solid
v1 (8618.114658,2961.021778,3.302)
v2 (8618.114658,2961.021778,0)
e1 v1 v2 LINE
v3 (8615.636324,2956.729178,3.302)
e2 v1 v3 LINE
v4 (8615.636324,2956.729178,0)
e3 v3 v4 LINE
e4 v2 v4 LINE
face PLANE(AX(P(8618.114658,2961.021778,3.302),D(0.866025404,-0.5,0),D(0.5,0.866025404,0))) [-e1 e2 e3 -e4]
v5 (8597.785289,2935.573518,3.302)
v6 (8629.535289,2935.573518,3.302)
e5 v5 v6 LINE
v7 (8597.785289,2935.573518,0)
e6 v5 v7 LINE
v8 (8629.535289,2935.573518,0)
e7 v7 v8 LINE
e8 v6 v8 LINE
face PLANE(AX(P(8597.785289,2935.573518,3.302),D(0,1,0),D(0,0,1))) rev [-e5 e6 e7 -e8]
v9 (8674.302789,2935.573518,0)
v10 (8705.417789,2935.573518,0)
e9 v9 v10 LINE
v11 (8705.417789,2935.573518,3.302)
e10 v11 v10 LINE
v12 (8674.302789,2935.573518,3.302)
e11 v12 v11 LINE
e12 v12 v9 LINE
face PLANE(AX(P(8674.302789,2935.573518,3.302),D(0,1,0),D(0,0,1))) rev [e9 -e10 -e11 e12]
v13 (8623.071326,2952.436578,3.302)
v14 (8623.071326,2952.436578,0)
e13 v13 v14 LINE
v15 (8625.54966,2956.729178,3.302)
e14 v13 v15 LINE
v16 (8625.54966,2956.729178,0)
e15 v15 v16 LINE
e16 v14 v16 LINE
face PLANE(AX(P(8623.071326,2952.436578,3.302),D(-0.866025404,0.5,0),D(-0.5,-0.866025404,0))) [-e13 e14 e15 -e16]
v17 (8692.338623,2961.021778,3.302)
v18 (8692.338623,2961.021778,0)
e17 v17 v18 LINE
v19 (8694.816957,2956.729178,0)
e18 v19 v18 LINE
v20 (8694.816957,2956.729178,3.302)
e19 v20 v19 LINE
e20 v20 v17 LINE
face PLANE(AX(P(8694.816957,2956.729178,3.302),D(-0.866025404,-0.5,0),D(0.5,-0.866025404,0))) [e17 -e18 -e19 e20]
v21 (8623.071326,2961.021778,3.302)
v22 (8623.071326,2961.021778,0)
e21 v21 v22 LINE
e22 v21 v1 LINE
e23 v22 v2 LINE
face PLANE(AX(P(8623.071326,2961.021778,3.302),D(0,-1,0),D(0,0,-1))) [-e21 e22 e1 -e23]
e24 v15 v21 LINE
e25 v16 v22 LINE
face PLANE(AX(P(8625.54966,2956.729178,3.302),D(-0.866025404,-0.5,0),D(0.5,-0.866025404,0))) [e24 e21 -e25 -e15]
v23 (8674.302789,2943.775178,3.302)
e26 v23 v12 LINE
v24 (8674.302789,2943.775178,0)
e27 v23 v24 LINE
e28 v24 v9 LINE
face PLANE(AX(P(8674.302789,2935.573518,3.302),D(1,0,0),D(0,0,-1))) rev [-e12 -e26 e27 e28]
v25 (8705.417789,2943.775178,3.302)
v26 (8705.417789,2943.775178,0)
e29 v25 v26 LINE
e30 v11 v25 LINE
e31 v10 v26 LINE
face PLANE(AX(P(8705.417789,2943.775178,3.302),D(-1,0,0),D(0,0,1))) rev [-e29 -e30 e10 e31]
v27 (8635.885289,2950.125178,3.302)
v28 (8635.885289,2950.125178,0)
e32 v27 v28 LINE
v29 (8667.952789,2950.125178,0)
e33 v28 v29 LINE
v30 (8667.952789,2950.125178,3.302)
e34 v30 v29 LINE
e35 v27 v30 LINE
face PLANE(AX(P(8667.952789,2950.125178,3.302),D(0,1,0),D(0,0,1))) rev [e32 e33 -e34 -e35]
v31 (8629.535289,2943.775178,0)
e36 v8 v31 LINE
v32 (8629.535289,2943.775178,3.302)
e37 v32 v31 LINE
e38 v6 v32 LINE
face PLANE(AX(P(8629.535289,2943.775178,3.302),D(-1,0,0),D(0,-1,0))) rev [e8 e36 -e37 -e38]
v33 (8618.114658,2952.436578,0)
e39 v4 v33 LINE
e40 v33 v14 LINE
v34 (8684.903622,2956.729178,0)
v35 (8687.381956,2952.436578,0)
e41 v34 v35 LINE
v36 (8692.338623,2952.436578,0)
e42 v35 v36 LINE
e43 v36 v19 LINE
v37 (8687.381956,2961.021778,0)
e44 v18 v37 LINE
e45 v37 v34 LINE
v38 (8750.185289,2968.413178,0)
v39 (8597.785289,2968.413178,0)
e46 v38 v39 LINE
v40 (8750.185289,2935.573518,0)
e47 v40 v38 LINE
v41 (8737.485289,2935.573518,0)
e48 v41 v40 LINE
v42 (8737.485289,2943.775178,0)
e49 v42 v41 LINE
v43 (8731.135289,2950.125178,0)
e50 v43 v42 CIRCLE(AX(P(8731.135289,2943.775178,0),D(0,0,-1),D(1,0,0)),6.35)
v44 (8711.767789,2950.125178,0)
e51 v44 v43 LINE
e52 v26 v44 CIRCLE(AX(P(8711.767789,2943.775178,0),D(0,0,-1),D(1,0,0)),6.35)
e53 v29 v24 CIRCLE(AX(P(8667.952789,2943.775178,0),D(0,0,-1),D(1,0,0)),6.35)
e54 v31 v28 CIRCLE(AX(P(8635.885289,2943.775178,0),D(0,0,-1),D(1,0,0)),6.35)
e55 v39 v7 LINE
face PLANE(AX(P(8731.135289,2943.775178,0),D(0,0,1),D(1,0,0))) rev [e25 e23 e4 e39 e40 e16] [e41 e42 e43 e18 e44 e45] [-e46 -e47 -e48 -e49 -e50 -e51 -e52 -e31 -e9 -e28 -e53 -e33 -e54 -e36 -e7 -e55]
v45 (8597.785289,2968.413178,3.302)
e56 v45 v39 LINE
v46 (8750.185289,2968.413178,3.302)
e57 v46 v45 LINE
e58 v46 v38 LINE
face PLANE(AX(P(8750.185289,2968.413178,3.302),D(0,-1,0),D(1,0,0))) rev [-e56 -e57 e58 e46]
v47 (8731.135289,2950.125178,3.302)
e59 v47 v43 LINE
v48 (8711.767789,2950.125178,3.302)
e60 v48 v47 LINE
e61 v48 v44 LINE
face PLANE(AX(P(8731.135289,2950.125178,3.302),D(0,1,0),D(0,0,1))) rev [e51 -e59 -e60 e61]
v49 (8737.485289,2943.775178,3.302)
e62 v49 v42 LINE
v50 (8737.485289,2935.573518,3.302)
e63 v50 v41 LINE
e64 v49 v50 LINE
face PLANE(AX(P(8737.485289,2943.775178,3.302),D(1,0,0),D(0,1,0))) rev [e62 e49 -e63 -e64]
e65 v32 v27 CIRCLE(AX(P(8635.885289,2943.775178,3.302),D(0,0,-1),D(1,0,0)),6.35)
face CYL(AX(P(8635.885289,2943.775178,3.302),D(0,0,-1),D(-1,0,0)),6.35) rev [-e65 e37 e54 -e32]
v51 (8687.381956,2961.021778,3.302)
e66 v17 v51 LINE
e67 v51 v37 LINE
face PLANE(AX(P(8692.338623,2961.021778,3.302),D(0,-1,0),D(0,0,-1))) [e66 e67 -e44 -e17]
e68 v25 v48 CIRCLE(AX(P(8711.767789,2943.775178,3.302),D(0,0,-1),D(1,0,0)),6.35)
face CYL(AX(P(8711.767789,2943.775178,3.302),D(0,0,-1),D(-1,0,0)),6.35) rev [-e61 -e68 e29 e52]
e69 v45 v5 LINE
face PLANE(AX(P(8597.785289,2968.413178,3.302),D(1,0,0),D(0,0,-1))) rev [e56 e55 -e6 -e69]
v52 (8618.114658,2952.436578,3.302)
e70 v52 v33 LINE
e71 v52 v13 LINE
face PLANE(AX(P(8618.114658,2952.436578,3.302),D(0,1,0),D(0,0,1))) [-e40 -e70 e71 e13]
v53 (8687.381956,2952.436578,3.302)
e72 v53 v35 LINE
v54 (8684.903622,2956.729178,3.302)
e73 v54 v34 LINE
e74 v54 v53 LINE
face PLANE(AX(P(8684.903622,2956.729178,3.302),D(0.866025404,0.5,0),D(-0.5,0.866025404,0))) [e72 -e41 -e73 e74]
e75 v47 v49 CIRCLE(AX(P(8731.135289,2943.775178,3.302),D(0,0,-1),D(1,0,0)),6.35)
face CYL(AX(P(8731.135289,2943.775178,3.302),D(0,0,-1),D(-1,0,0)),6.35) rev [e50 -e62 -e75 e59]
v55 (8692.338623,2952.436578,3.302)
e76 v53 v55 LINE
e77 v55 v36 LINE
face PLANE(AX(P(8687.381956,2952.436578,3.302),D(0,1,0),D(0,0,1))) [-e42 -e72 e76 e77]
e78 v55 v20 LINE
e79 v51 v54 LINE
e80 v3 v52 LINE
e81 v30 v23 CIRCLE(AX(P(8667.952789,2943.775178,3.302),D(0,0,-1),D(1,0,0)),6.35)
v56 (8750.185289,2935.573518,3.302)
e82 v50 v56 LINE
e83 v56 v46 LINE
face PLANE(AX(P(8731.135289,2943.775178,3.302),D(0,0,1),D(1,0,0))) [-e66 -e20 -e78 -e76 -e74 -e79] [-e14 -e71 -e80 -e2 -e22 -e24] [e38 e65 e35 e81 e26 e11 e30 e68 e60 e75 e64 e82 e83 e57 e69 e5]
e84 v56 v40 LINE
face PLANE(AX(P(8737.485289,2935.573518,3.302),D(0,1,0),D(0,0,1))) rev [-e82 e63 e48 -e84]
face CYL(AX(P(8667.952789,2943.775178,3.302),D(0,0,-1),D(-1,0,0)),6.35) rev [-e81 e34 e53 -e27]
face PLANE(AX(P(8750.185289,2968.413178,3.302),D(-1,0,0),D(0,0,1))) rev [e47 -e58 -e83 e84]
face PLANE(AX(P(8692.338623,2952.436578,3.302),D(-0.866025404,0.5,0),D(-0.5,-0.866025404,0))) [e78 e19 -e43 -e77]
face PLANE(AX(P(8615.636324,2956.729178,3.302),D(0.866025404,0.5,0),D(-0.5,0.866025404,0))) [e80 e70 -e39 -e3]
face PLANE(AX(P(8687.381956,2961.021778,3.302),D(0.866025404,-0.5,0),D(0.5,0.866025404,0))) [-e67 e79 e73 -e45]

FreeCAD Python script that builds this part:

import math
import FreeCAD as App
import Part
import Sketcher
from FreeCAD import Vector
Q = App.Units.Quantity

doc = App.newDocument("Part")
body = doc.addObject("PartDesign::Body", "Body")

# Sketch on XY plane
sketch1 = body.newObject("Sketcher::SketchObject", "Sketch")
sketch1.AttachmentSupport = (doc.getObject("XY_Plane"), [""])
sketch1.MapMode = "FlatFace"
sketch1.addGeometry([
    Part.LineSegment(Vector(8750.185289, 2968.413178, 0), Vector(8597.785289, 2968.413178, 0)),  # 0
    Part.LineSegment(Vector(8597.785289, 2968.413178, 0), Vector(8597.785289, 2935.573518, 0)),  # 1
    Part.LineSegment(Vector(8597.785289, 2935.573518, 0), Vector(8629.535289, 2935.573518, 0)),  # 2
    Part.LineSegment(Vector(8629.535289, 2935.573518, 0), Vector(8629.535289, 2943.775178, 0)),  # 3
    Part.ArcOfCircle(Part.Circle(Vector(8635.885289, 2943.775178, 0), Vector(0, 0, 1), 6.35), math.radians(90), math.radians(180)),  # 4
    Part.LineSegment(Vector(8635.885289, 2950.125178, 0), Vector(8667.952789, 2950.125178, 0)),  # 5
    Part.ArcOfCircle(Part.Circle(Vector(8667.952789, 2943.775178, 0), Vector(0, 0, 1), 6.35), math.radians(0), math.radians(90)),  # 6
    Part.LineSegment(Vector(8674.302789, 2943.775178, 0), Vector(8674.302789, 2935.573518, 0)),  # 7
    Part.LineSegment(Vector(8674.302789, 2935.573518, 0), Vector(8705.417789, 2935.573518, 0)),  # 8
    Part.LineSegment(Vector(8705.417789, 2935.573518, 0), Vector(8705.417789, 2943.775178, 0)),  # 9
    Part.ArcOfCircle(Part.Circle(Vector(8711.767789, 2943.775178, 0), Vector(0, 0, 1), 6.35), math.radians(90), math.radians(180)),  # 10
    Part.LineSegment(Vector(8711.767789, 2950.125178, 0), Vector(8731.135289, 2950.125178, 0)),  # 11
    Part.ArcOfCircle(Part.Circle(Vector(8731.135289, 2943.775178, 0), Vector(0, 0, 1), 6.35), math.radians(0), math.radians(90)),  # 12
    Part.LineSegment(Vector(8737.485289, 2943.775178, 0), Vector(8737.485289, 2935.573518, 0)),  # 13
    Part.LineSegment(Vector(8737.485289, 2935.573518, 0), Vector(8750.185289, 2935.573518, 0)),  # 14
    Part.LineSegment(Vector(8750.185289, 2935.573518, 0), Vector(8750.185289, 2968.413178, 0)),  # 15
    Part.LineSegment(Vector(8615.636324, 2956.729178, 0), Vector(8618.114658, 2961.021778, 0)),  # 16
    Part.LineSegment(Vector(8618.114658, 2961.021778, 0), Vector(8623.071326, 2961.021778, 0)),  # 17
    Part.LineSegment(Vector(8623.071326, 2961.021778, 0), Vector(8625.54966, 2956.729178, 0)),  # 18
    Part.LineSegment(Vector(8625.54966, 2956.729178, 0), Vector(8623.071326, 2952.436578, 0)),  # 19
    Part.LineSegment(Vector(8623.071326, 2952.436578, 0), Vector(8618.114658, 2952.436578, 0)),  # 20
    Part.LineSegment(Vector(8618.114658, 2952.436578, 0), Vector(8615.636324, 2956.729178, 0)),  # 21
    Part.LineSegment(Vector(8684.903622, 2956.729178, 0), Vector(8687.381956, 2961.021778, 0)),  # 22
    Part.LineSegment(Vector(8687.381956, 2961.021778, 0), Vector(8692.338623, 2961.021778, 0)),  # 23
    Part.LineSegment(Vector(8692.338623, 2961.021778, 0), Vector(8694.816957, 2956.729178, 0)),  # 24
    Part.LineSegment(Vector(8694.816957, 2956.729178, 0), Vector(8692.338623, 2952.436578, 0)),  # 25
    Part.LineSegment(Vector(8692.338623, 2952.436578, 0), Vector(8687.381956, 2952.436578, 0)),  # 26
    Part.LineSegment(Vector(8687.381956, 2952.436578, 0), Vector(8684.903622, 2956.729178, 0)),  # 27
], False)
sketch1.addConstraint([
    Sketcher.Constraint("Coincident", 0, 2, 1, 1),
    Sketcher.Constraint("Coincident", 1, 2, 2, 1),
    Sketcher.Constraint("Coincident", 2, 2, 3, 1),
    Sketcher.Constraint("Tangent", 3, 2, 4, 2),
    Sketcher.Constraint("Tangent", 4, 1, 5, 1),
    Sketcher.Constraint("Tangent", 5, 2, 6, 2),
    Sketcher.Constraint("Tangent", 6, 1, 7, 1),
    Sketcher.Constraint("Coincident", 7, 2, 8, 1),
    Sketcher.Constraint("Coincident", 8, 2, 9, 1),
    Sketcher.Constraint("Tangent", 9, 2, 10, 2),
    Sketcher.Constraint("Tangent", 10, 1, 11, 1),
    Sketcher.Constraint("Tangent", 11, 2, 12, 2),
    Sketcher.Constraint("Tangent", 12, 1, 13, 1),
    Sketcher.Constraint("Coincident", 13, 2, 14, 1),
    Sketcher.Constraint("Coincident", 14, 2, 15, 1),
    Sketcher.Constraint("Coincident", 15, 2, 0, 1),
    Sketcher.Constraint("Coincident", 16, 2, 17, 1),
    Sketcher.Constraint("Coincident", 17, 2, 18, 1),
    Sketcher.Constraint("Coincident", 18, 2, 19, 1),
    Sketcher.Constraint("Coincident", 19, 2, 20, 1),
    Sketcher.Constraint("Coincident", 20, 2, 21, 1),
    Sketcher.Constraint("Coincident", 21, 2, 16, 1),
    Sketcher.Constraint("Coincident", 22, 2, 23, 1),
    Sketcher.Constraint("Coincident", 23, 2, 24, 1),
    Sketcher.Constraint("Coincident", 24, 2, 25, 1),
    Sketcher.Constraint("Coincident", 25, 2, 26, 1),
    Sketcher.Constraint("Coincident", 26, 2, 27, 1),
    Sketcher.Constraint("Coincident", 27, 2, 22, 1),
    Sketcher.Constraint("Horizontal", 0),
    Sketcher.Constraint("Vertical", 1),
    Sketcher.Constraint("Horizontal", 2),
    Sketcher.Constraint("Vertical", 3),
    Sketcher.Constraint("Horizontal", 5),
    Sketcher.Constraint("Vertical", 7),
    Sketcher.Constraint("Horizontal", 8),
    Sketcher.Constraint("Vertical", 9),
    Sketcher.Constraint("Horizontal", 11),
    Sketcher.Constraint("Vertical", 13),
    Sketcher.Constraint("Horizontal", 14),
    Sketcher.Constraint("Vertical", 15),
    Sketcher.Constraint("Horizontal", 17),
    Sketcher.Constraint("Horizontal", 20),
    Sketcher.Constraint("Horizontal", 23),
    Sketcher.Constraint("Horizontal", 26),
    Sketcher.Constraint("Equal", 4, 6),
    Sketcher.Constraint("Equal", 6, 10),
    Sketcher.Constraint("Equal", 10, 12),
    Sketcher.Constraint("Parallel", 16, 19),
    Sketcher.Constraint("Parallel", 18, 21),
    Sketcher.Constraint("Parallel", 19, 22),
    Sketcher.Constraint("Parallel", 21, 24),
    Sketcher.Constraint("Parallel", 22, 25),
    Sketcher.Constraint("Parallel", 24, 27),
    Sketcher.Constraint("Horizontal", 6, 3, 10, 3),
    Sketcher.Constraint("Horizontal", 2, 2, 7, 2),
    Sketcher.Constraint("Horizontal", 8, 2, 13, 2),
    Sketcher.Constraint("Horizontal", 18, 2, 21, 2),
    Sketcher.Constraint("Horizontal", 17, 2, 22, 2),
    Sketcher.Constraint("Horizontal", 21, 2, 24, 2),
    Sketcher.Constraint("Horizontal", 20, 2, 25, 2),
    Sketcher.Constraint("Horizontal", 24, 2, 27, 2),
    Sketcher.Constraint("Vertical", 17, 2, 19, 2),
    Sketcher.Constraint("Vertical", 16, 2, 20, 2),
    Sketcher.Constraint("Equal", 20, 23),
    Sketcher.Constraint("DistanceX", 0, 2, 0, 1, Q("6 in")),
    Sketcher.Constraint("Radius", 4, Q("0.25 in")),
    Sketcher.Constraint("DistanceX", 14, 1, 14, 2, Q("0.5 in")),
    Sketcher.Constraint("Angle", 16, Q("60 deg")),
    Sketcher.Constraint("DistanceX", 2, 1, 2, 2, Q("1.25 in")),
    Sketcher.Constraint("DistanceX", 8, 1, 8, 2, Q("1.225 in")),
    Sketcher.Constraint("DistanceY", 4, 3, 0, 2, Q("0.97 in")),
    Sketcher.Constraint("DistanceY", 4, 1, 18, 2, Q("0.26 in")),
    Sketcher.Constraint("DistanceX", 5, 1, 5, 2, Q("1.2625 in")),
    Sketcher.Constraint("DistanceY", 1, 2, 1, 1, Q("1.2929 in")),
    Sketcher.Constraint("DistanceY", 3, 2, 16, 2, Q("0.679 in")),
    Sketcher.Constraint("DistanceX", 16, 2, 18, 2, Q("7.435001 mm")),
    Sketcher.Constraint("DistanceX", -1, 1, 4, 3, Q("8635.885289 mm")),
    Sketcher.Constraint("DistanceX", -1, 1, 16, 2, Q("8618.114658 mm")),
    Sketcher.Constraint("DistanceX", -1, 1, 27, 2, Q("8684.903622 mm")),
    Sketcher.Constraint("DistanceY", -1, 1, 4, 3, Q("2943.775178 mm")),
])
pad1 = body.newObject("PartDesign::Pad", "Pad")
pad1.Profile = sketch1
pad1.Length = Q("0.13 in")

doc.recompute()
